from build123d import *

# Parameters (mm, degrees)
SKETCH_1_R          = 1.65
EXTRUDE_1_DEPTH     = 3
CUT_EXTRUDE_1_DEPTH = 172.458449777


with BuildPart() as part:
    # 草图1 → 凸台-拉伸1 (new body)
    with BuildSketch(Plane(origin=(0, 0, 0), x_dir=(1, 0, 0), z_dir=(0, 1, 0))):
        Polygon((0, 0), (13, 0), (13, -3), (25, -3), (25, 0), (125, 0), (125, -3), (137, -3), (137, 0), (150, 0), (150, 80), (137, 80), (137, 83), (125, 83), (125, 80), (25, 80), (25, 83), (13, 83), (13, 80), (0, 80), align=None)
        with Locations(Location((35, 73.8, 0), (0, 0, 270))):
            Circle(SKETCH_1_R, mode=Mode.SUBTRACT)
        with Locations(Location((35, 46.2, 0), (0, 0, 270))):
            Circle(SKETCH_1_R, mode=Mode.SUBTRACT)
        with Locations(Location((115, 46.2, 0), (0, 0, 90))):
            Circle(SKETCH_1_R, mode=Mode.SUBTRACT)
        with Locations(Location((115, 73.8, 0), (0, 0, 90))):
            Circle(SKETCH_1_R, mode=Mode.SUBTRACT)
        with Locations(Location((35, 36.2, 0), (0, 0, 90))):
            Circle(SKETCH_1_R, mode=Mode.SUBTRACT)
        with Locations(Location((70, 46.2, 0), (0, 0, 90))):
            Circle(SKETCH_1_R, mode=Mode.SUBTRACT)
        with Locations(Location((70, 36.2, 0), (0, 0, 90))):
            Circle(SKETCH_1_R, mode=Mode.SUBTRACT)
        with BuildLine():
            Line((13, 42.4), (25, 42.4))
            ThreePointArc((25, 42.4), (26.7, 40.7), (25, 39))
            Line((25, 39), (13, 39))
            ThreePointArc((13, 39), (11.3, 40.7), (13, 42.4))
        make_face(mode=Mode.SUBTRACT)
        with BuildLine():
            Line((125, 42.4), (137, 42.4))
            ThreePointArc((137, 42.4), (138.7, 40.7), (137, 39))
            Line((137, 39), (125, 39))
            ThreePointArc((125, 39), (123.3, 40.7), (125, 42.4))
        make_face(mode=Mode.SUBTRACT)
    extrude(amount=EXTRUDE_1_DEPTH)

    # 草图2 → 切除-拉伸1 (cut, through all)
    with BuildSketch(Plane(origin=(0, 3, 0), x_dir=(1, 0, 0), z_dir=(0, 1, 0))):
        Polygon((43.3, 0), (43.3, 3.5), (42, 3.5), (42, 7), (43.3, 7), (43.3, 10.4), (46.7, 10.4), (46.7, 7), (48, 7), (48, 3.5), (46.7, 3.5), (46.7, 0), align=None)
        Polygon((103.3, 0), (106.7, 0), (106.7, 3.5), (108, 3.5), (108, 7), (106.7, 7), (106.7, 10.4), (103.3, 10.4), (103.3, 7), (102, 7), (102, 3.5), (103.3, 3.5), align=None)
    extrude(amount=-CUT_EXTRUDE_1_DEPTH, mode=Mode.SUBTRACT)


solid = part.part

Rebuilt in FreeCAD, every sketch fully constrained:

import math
import FreeCAD as App
import Part
import Sketcher
from FreeCAD import Vector


def add_polygon(sketch, points):
    """Adds a closed chain of lines whose ends are joined by coincident constraints."""
    first, n = sketch.GeometryCount, len(points)
    for a, b in zip(points, points[1:] + points[:1]):
        sketch.addGeometry(Part.LineSegment(App.Vector(*a, 0), App.Vector(*b, 0)), False)
    for i in range(n):
        sketch.addConstraint(Sketcher.Constraint("Coincident", first + i, 2, first + (i + 1) % n, 1))

doc = App.newDocument("Part")
params = doc.addObject("Spreadsheet::Sheet", "Params")
for row, (alias, value) in enumerate([
    ("sketch1_diameter", "3.3 mm"),
    ("sketch1_radius", "1.7 mm"),
    ("sketch1_width", "13 mm"),
    ("sketch1_width2", "12 mm"),
    ("sketch1_width3", "100 mm"),
    ("pad1_length", "3 mm"),
    ("sketch2_width", "3.4 mm"),
    ("sketch2_width2", "1.3 mm"),
    ("sketch2_height", "3.5 mm"),
], start=1):
    params.set(f"A{row}", alias)
    params.set(f"B{row}", "=" + value)
    params.setAlias(f"B{row}", alias)

body = doc.addObject("PartDesign::Body", "Body")

sketch1 = body.newObject("Sketcher::SketchObject", "Sketch")
sketch1.AttachmentSupport = (doc.getObject("XZ_Plane"), [""])
sketch1.MapMode = "FlatFace"
add_polygon(sketch1, [(0, 0), (13, 0), (13, 3), (25, 3), (25, 0), (125, 0), (125, 3), (137, 3), (137, 0), (150, 0), (150, -80), (137, -80), (137, -83), (125, -83), (125, -80), (25, -80), (25, -83), (13, -83), (13, -80), (0, -80)])
sketch1.addGeometry(Part.Circle(Vector(35, -36.2, 0), Vector(0, 0, 1), 1.65), False)
sketch1.addGeometry(Part.ArcOfCircle(Part.Circle(Vector(13, -40.7, 0), Vector(0, 0, 1), 1.7), math.radians(90), math.radians(270)), False)
sketch1.addGeometry(Part.LineSegment(Vector(13, -42.4, 0), Vector(25, -42.4, 0)), False)
sketch1.addGeometry(Part.ArcOfCircle(Part.Circle(Vector(25, -40.7, 0), Vector(0, 0, 1), 1.7), math.radians(-90), math.radians(90)), False)
sketch1.addGeometry(Part.LineSegment(Vector(25, -39, 0), Vector(13, -39, 0)), False)
sketch1.addGeometry(Part.Circle(Vector(70, -36.2, 0), Vector(0, 0, 1), 1.65), False)
sketch1.addGeometry(Part.Circle(Vector(35, -46.2, 0), Vector(0, 0, 1), 1.65), False)
sketch1.addGeometry(Part.Circle(Vector(70, -46.2, 0), Vector(0, 0, 1), 1.65), False)
sketch1.addGeometry(Part.ArcOfCircle(Part.Circle(Vector(125, -40.7, 0), Vector(0, 0, 1), 1.7), math.radians(90), math.radians(270)), False)
sketch1.addGeometry(Part.LineSegment(Vector(125, -42.4, 0), Vector(137, -42.4, 0)), False)
sketch1.addGeometry(Part.ArcOfCircle(Part.Circle(Vector(137, -40.7, 0), Vector(0, 0, 1), 1.7), math.radians(-90), math.radians(90)), False)
sketch1.addGeometry(Part.LineSegment(Vector(137, -39, 0), Vector(125, -39, 0)), False)
sketch1.addGeometry(Part.Circle(Vector(115, -46.2, 0), Vector(0, 0, 1), 1.65), False)
sketch1.addGeometry(Part.Circle(Vector(35, -73.8, 0), Vector(0, 0, 1), 1.65), False)
sketch1.addGeometry(Part.Circle(Vector(115, -73.8, 0), Vector(0, 0, 1), 1.65), False)
sketch1.addConstraint(Sketcher.Constraint("Tangent", 21, 2, 22, 1))
sketch1.addConstraint(Sketcher.Constraint("Tangent", 22, 2, 23, 1))
sketch1.addConstraint(Sketcher.Constraint("Tangent", 23, 2, 24, 1))
sketch1.addConstraint(Sketcher.Constraint("Tangent", 24, 2, 21, 1))
sketch1.addConstraint(Sketcher.Constraint("Tangent", 28, 2, 29, 1))
sketch1.addConstraint(Sketcher.Constraint("Tangent", 29, 2, 30, 1))
sketch1.addConstraint(Sketcher.Constraint("Tangent", 30, 2, 31, 1))
sketch1.addConstraint(Sketcher.Constraint("Tangent", 31, 2, 28, 1))
sketch1.addConstraint(Sketcher.Constraint("Horizontal", 0))
sketch1.addConstraint(Sketcher.Constraint("Vertical", 1))
sketch1.addConstraint(Sketcher.Constraint("Horizontal", 2))
sketch1.addConstraint(Sketcher.Constraint("Vertical", 3))
sketch1.addConstraint(Sketcher.Constraint("Horizontal", 4))
sketch1.addConstraint(Sketcher.Constraint("Vertical", 5))
sketch1.addConstraint(Sketcher.Constraint("Horizontal", 6))
sketch1.addConstraint(Sketcher.Constraint("Vertical", 7))
sketch1.addConstraint(Sketcher.Constraint("Horizontal", 8))
sketch1.addConstraint(Sketcher.Constraint("Vertical", 9))
sketch1.addConstraint(Sketcher.Constraint("Horizontal", 10))
sketch1.addConstraint(Sketcher.Constraint("Vertical", 11))
sketch1.addConstraint(Sketcher.Constraint("Horizontal", 12))
sketch1.addConstraint(Sketcher.Constraint("Vertical", 13))
sketch1.addConstraint(Sketcher.Constraint("Horizontal", 14))
sketch1.addConstraint(Sketcher.Constraint("Vertical", 15))
sketch1.addConstraint(Sketcher.Constraint("Horizontal", 16))
sketch1.addConstraint(Sketcher.Constraint("Vertical", 17))
sketch1.addConstraint(Sketcher.Constraint("Horizontal", 18))
sketch1.addConstraint(Sketcher.Constraint("Vertical", 19))
sketch1.addConstraint(Sketcher.Constraint("Horizontal", 22))
sketch1.addConstraint(Sketcher.Constraint("Horizontal", 24))
sketch1.addConstraint(Sketcher.Constraint("Horizontal", 29))
sketch1.addConstraint(Sketcher.Constraint("Horizontal", 31))
sketch1.addConstraint(Sketcher.Constraint("Coincident", 19, 2, -1, 1))
sketch1.addConstraint(Sketcher.Constraint("Equal", 20, 25))
sketch1.addConstraint(Sketcher.Constraint("Equal", 25, 26))
sketch1.addConstraint(Sketcher.Constraint("Equal", 26, 27))
sketch1.addConstraint(Sketcher.Constraint("Equal", 23, 28))
sketch1.addConstraint(Sketcher.Constraint("Equal", 27, 32))
sketch1.addConstraint(Sketcher.Constraint("Equal", 32, 33))
sketch1.addConstraint(Sketcher.Constraint("Equal", 33, 34))
sketch1.addConstraint(Sketcher.Constraint("PointOnObject", 3, 2, -1))
sketch1.addConstraint(Sketcher.Constraint("PointOnObject", 7, 2, -1))
sketch1.addConstraint(Sketcher.Constraint("Horizontal", 20, 3, 25, 3))
sketch1.addConstraint(Sketcher.Constraint("Horizontal", 26, 3, 27, 3))
sketch1.addConstraint(Sketcher.Constraint("Horizontal", 23, 3, 28, 3))
sketch1.addConstraint(Sketcher.Constraint("Horizontal", 27, 3, 32, 3))
sketch1.addConstraint(Sketcher.Constraint("Horizontal", 33, 3, 34, 3))
sketch1.addConstraint(Sketcher.Constraint("Horizontal", 2, 2, 5, 2))
sketch1.addConstraint(Sketcher.Constraint("Horizontal", 10, 2, 13, 2))
sketch1.addConstraint(Sketcher.Constraint("Horizontal", 12, 2, 15, 2))
sketch1.addConstraint(Sketcher.Constraint("Horizontal", 14, 2, 17, 2))
sketch1.addConstraint(Sketcher.Constraint("Vertical", 20, 3, 26, 3))
sketch1.addConstraint(Sketcher.Constraint("Vertical", 25, 3, 27, 3))
sketch1.addConstraint(Sketcher.Constraint("Vertical", 26, 3, 33, 3))
sketch1.addConstraint(Sketcher.Constraint("Vertical", 32, 3, 34, 3))
sketch1.addConstraint(Sketcher.Constraint("Vertical", 21, 3, 0, 2))
sketch1.addConstraint(Sketcher.Constraint("Vertical", 23, 3, 2, 2))
sketch1.addConstraint(Sketcher.Constraint("Vertical", 28, 3, 4, 2))
sketch1.addConstraint(Sketcher.Constraint("Vertical", 30, 3, 6, 2))
sketch1.addConstraint(Sketcher.Constraint("Vertical", 7, 2, 10, 2))
sketch1.addConstraint(Sketcher.Constraint("Vertical", 5, 2, 12, 2))
sketch1.addConstraint(Sketcher.Constraint("Vertical", 3, 2, 14, 2))
sketch1.addConstraint(Sketcher.Constraint("Vertical", 1, 2, 16, 2))
sketch1.addConstraint(Sketcher.Constraint("Equal", 2, 6))
sketch1.addConstraint(Sketcher.Constraint("Equal", 0, 8))
sketch1.addConstraint(Sketcher.Constraint("Equal", 7, 11))
sketch1.addConstraint(Sketcher.Constraint("Diameter", 20, 3.3))
sketch1.addConstraint(Sketcher.Constraint("Radius", 21, 1.7))
sketch1.addConstraint(Sketcher.Constraint("DistanceX", 0, 1, 0, 2, 13.0))
sketch1.addConstraint(Sketcher.Constraint("DistanceX", 2, 1, 2, 2, 12.0))
sketch1.addConstraint(Sketcher.Constraint("DistanceX", 4, 1, 4, 2, 100.0))
sketch1.addConstraint(Sketcher.Constraint("DistanceY", 1, 1, 1, 2, 3.0))
sketch1.addConstraint(Sketcher.Constraint("DistanceY", 9, 2, 9, 1, 80.0))
sketch1.addConstraint(Sketcher.Constraint("DistanceX", -1, 1, 20, 3, 35.0))
sketch1.addConstraint(Sketcher.Constraint("DistanceX", -1, 1, 25, 3, 70.0))
sketch1.addConstraint(Sketcher.Constraint("DistanceX", -1, 1, 32, 3, 115.0))
sketch1.addConstraint(Sketcher.Constraint("DistanceY", 23, 2, -1, 1, 39.0))
sketch1.addConstraint(Sketcher.Constraint("DistanceY", 26, 3, 20, 3, 10.0))
sketch1.addConstraint(Sketcher.Constraint("DistanceY", 20, 3, -1, 1, 36.2))
sketch1.addConstraint(Sketcher.Constraint("DistanceY", 33, 3, -1, 1, 73.8))
sketch1.setExpression("Constraints[86]", "Params.sketch1_diameter")
sketch1.setExpression("Constraints[87]", "Params.sketch1_radius")
sketch1.setExpression("Constraints[88]", "Params.sketch1_width")
sketch1.setExpression("Constraints[89]", "Params.sketch1_width2")
sketch1.setExpression("Constraints[90]", "Params.sketch1_width3")
pad1 = body.newObject("PartDesign::Pad", "Pad")
pad1.Profile = sketch1
pad1.setExpression("Length", "Params.pad1_length")
pad1.Reversed = True

sketch2 = body.newObject("Sketcher::SketchObject", "Sketch001")
sketch2.AttachmentSupport = (doc.getObject("XZ_Plane"), [""])
sketch2.MapMode = "FlatFace"
sketch2.AttachmentOffset = App.Placement(Vector(0, 0, -3), App.Rotation())
add_polygon(sketch2, [(43.3, -3.5), (43.3, 0), (46.7, 0), (46.7, -3.5), (48, -3.5), (48, -7), (46.7, -7), (46.7, -10.4), (43.3, -10.4), (43.3, -7), (42, -7), (42, -3.5)])
add_polygon(sketch2, [(103.3, 0), (106.7, 0), (106.7, -3.5), (108, -3.5), (108, -7), (106.7, -7), (106.7, -10.4), (103.3, -10.4), (103.3, -7), (102, -7), (102, -3.5), (103.3, -3.5)])
sketch2.addConstraint(Sketcher.Constraint("Vertical", 0))
sketch2.addConstraint(Sketcher.Constraint("Horizontal", 1))
sketch2.addConstraint(Sketcher.Constraint("Vertical", 2))
sketch2.addConstraint(Sketcher.Constraint("Horizontal", 3))
sketch2.addConstraint(Sketcher.Constraint("Vertical", 4))
sketch2.addConstraint(Sketcher.Constraint("Horizontal", 5))
sketch2.addConstraint(Sketcher.Constraint("Vertical", 6))
sketch2.addConstraint(Sketcher.Constraint("Horizontal", 7))
sketch2.addConstraint(Sketcher.Constraint("Vertical", 8))
sketch2.addConstraint(Sketcher.Constraint("Horizontal", 9))
sketch2.addConstraint(Sketcher.Constraint("Vertical", 10))
sketch2.addConstraint(Sketcher.Constraint("Horizontal", 11))
sketch2.addConstraint(Sketcher.Constraint("Horizontal", 12))
sketch2.addConstraint(Sketcher.Constraint("Vertical", 13))
sketch2.addConstraint(Sketcher.Constraint("Horizontal", 14))
sketch2.addConstraint(Sketcher.Constraint("Vertical", 15))
sketch2.addConstraint(Sketcher.Constraint("Horizontal", 16))
sketch2.addConstraint(Sketcher.Constraint("Vertical", 17))
sketch2.addConstraint(Sketcher.Constraint("Horizontal", 18))
sketch2.addConstraint(Sketcher.Constraint("Vertical", 19))
sketch2.addConstraint(Sketcher.Constraint("Horizontal", 20))
sketch2.addConstraint(Sketcher.Constraint("Vertical", 21))
sketch2.addConstraint(Sketcher.Constraint("Horizontal", 22))
sketch2.addConstraint(Sketcher.Constraint("Vertical", 23))
sketch2.addConstraint(Sketcher.Constraint("PointOnObject", 0, 2, -1))
sketch2.addConstraint(Sketcher.Constraint("PointOnObject", 12, 2, -1))
sketch2.addConstraint(Sketcher.Constraint("Horizontal", 5, 2, 8, 2))
sketch2.addConstraint(Sketcher.Constraint("Horizontal", 3, 2, 10, 2))
sketch2.addConstraint(Sketcher.Constraint("Horizontal", 11, 2, 13, 2))
sketch2.addConstraint(Sketcher.Constraint("Horizontal", 9, 2, 15, 2))
sketch2.addConstraint(Sketcher.Constraint("Horizontal", 7, 2, 17, 2))
sketch2.addConstraint(Sketcher.Constraint("Horizontal", 16, 2, 19, 2))
sketch2.addConstraint(Sketcher.Constraint("Horizontal", 14, 2, 21, 2))
sketch2.addConstraint(Sketcher.Constraint("Vertical", 2, 2, 5, 2))
sketch2.addConstraint(Sketcher.Constraint("Vertical", 0, 2, 7, 2))
sketch2.addConstraint(Sketcher.Constraint("Vertical", 13, 2, 16, 2))
sketch2.addConstraint(Sketcher.Constraint("Vertical", 19, 2, 22, 2))
sketch2.addConstraint(Sketcher.Constraint("Equal", 5, 9))
sketch2.addConstraint(Sketcher.Constraint("Equal", 7, 12))
sketch2.addConstraint(Sketcher.Constraint("Equal", 11, 14))
sketch2.addConstraint(Sketcher.Constraint("Equal", 16, 20))
sketch2.addConstraint(Sketcher.Constraint("Equal", 2, 4))
sketch2.addConstraint(Sketcher.Constraint("Equal", 18, 6))
sketch2.addConstraint(Sketcher.Constraint("DistanceX", 1, 1, 1, 2, 3.4))
sketch2.addConstraint(Sketcher.Constraint("DistanceX", 3, 1, 3, 2, 1.3))
sketch2.addConstraint(Sketcher.Constraint("DistanceY", 0, 1, 0, 2, 3.5))
sketch2.addConstraint(Sketcher.Constraint("DistanceX", -1, 1, 3, 2, 48.0))
sketch2.addConstraint(Sketcher.Constraint("DistanceX", -1, 1, 14, 2, 108.0))
sketch2.setExpression("Constraints[67]", "Params.sketch2_width")
sketch2.setExpression("Constraints[68]", "Params.sketch2_width2")
sketch2.setExpression("Constraints[69]", "Params.sketch2_height")
pocket1 = body.newObject("PartDesign::Pocket", "Pocket")
pocket1.Profile = sketch2
pocket1.Type = "ThroughAll"
pocket1.Reversed = True

doc.recompute()
